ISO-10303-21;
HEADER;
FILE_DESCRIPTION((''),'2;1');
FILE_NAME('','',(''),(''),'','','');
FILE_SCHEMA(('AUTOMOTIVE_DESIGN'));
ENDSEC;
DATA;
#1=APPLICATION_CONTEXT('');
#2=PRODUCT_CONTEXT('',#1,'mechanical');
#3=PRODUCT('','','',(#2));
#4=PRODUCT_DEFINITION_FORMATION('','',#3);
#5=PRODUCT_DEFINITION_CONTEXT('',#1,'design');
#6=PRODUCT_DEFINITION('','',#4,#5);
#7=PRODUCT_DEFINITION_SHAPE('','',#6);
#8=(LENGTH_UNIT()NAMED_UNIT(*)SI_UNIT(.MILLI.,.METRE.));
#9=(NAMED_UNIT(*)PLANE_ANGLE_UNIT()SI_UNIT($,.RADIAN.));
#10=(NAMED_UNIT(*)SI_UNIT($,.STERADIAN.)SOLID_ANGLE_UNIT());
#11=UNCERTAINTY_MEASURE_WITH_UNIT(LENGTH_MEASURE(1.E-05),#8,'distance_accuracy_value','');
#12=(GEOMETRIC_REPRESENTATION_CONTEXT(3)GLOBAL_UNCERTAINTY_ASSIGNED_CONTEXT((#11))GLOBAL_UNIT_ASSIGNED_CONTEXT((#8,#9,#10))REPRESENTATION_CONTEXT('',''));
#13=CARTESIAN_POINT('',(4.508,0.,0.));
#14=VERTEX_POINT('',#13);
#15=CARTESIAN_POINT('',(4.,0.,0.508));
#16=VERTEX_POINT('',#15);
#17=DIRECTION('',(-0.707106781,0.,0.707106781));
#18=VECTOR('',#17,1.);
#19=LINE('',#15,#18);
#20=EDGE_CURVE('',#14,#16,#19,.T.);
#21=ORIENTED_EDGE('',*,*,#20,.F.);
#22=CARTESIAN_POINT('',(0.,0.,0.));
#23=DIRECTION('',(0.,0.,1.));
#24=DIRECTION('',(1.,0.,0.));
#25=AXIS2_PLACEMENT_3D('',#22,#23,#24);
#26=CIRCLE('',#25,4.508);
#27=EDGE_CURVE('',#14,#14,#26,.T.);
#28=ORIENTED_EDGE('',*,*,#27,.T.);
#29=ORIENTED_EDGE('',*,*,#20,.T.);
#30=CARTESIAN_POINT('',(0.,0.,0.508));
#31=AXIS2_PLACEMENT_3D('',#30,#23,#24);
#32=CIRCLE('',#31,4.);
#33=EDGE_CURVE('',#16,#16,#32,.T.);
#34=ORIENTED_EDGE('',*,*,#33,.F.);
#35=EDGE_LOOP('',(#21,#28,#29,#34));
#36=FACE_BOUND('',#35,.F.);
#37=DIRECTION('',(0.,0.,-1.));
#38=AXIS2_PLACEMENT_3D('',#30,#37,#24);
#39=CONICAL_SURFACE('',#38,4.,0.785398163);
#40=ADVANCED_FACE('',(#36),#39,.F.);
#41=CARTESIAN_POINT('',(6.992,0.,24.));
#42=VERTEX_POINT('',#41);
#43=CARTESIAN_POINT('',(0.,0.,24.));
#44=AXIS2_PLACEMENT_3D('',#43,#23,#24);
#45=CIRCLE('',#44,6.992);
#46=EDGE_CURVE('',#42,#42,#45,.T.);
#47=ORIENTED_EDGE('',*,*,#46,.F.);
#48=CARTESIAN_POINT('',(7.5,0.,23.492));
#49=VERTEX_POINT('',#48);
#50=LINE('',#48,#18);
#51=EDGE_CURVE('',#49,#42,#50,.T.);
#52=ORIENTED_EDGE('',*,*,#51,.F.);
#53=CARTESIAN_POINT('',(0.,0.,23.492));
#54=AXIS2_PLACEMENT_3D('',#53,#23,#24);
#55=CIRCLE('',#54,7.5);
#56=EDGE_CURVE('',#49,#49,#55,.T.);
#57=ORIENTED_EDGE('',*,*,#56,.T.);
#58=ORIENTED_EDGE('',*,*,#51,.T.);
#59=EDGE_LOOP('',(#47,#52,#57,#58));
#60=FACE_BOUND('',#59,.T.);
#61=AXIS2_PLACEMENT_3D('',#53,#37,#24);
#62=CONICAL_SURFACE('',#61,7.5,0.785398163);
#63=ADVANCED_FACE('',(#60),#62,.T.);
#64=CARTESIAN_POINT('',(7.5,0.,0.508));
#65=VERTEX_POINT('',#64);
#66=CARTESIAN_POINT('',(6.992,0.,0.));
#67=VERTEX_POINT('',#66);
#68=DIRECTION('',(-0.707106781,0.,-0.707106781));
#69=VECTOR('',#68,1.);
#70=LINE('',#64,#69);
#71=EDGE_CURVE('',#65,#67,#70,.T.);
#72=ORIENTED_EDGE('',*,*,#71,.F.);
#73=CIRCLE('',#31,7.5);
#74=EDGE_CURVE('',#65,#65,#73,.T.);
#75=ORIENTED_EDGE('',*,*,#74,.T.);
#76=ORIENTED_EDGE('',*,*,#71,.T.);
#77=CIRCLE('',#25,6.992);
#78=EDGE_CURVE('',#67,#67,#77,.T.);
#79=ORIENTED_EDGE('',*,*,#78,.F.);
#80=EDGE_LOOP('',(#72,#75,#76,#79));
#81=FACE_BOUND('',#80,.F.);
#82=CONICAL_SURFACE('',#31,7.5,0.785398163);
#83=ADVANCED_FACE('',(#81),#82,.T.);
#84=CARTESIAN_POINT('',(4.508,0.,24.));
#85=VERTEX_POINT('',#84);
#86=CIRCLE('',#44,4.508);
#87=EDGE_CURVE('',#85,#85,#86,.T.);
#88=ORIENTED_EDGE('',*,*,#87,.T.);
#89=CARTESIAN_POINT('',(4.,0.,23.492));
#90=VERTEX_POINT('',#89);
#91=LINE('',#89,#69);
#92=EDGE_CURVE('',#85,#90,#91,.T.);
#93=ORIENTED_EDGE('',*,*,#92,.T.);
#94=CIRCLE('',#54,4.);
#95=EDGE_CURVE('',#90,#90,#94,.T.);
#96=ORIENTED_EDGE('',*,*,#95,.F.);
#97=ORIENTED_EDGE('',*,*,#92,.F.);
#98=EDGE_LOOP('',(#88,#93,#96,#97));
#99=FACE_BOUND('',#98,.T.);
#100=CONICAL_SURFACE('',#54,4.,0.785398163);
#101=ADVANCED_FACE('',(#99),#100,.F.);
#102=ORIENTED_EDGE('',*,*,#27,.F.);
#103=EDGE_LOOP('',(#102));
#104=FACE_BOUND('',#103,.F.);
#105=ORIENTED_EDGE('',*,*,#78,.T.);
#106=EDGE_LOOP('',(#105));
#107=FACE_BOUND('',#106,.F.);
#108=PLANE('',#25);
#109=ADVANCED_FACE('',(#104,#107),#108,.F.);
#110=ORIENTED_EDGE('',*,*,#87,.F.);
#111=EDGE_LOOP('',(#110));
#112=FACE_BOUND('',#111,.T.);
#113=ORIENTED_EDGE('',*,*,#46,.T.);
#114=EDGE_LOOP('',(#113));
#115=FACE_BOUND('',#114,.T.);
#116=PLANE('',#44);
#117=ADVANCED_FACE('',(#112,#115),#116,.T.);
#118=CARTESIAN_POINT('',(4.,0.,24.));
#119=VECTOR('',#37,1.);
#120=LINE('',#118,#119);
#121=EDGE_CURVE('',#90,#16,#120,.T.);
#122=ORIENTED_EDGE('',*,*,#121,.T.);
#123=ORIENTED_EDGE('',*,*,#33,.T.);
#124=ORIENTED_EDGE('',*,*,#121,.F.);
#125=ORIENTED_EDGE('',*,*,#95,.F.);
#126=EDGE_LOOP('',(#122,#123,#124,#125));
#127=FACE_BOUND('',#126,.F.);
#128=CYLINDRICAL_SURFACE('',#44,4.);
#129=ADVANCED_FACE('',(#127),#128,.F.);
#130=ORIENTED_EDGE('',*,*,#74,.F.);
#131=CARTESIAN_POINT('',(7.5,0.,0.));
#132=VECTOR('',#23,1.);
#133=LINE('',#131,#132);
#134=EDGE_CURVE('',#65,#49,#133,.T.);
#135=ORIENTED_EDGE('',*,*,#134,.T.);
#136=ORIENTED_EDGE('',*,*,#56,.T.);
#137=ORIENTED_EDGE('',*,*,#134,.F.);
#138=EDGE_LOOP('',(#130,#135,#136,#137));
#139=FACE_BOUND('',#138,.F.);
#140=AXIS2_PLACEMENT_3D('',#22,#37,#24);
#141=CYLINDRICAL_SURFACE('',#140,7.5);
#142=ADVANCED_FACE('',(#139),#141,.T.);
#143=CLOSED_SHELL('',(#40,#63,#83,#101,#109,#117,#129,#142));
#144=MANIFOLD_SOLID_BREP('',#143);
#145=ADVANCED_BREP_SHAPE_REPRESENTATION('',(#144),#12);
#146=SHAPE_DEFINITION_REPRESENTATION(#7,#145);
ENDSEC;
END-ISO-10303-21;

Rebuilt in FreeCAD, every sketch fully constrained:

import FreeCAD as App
import Part
import Sketcher
from FreeCAD import Vector
Q = App.Units.Quantity


def edges_at(feature, points):
    """Names of the edges that pass closest to the given points."""
    edges = feature.Shape.Edges
    near = lambda p: min(range(len(edges)), key=lambda i: edges[i].distToShape(Part.Vertex(*p))[0])
    return sorted({f"Edge{near(p) + 1}" for p in points})

doc = App.newDocument("Part")
body = doc.addObject("PartDesign::Body", "Body")

sketch1 = body.newObject("Sketcher::SketchObject", "Sketch")
sketch1.AttachmentSupport = (doc.getObject("XY_Plane"), [""])
sketch1.MapMode = "FlatFace"
sketch1.addGeometry(Part.Circle(Vector(0, 0, 0), Vector(0, 0, 1), 8), False)
sketch1.addConstraint([
    Sketcher.Constraint("Coincident", 0, 3, -1, 1),
    Sketcher.Constraint("Diameter", 0, Q("15 mm")),
])
pad1 = body.newObject("PartDesign::Pad", "Pad")
pad1.Profile = sketch1
pad1.Length = 24

sketch2 = body.newObject("Sketcher::SketchObject", "Sketch001")
sketch2.AttachmentSupport = (doc.getObject("XY_Plane"), [""])
sketch2.MapMode = "FlatFace"
sketch2.AttachmentOffset = App.Placement(Vector(0, 0, 24), App.Rotation())
sketch2.addGeometry(Part.Circle(Vector(0, 0, 0), Vector(0, 0, 1), 4), False)
sketch2.addConstraint([
    Sketcher.Constraint("Coincident", 0, 3, -1, 1),
    Sketcher.Constraint("Diameter", 0, Q("8 mm")),
])
pocket1 = body.newObject("PartDesign::Pocket", "Pocket")
pocket1.Profile = sketch2
pocket1.Type = "ThroughAll"
doc.recompute()

chamfer = body.newObject("PartDesign::Chamfer", "Chamfer")
chamfer.Base = (pocket1, edges_at(pocket1, [
    (-7.5, 0, 24),
    (-4, 0, 24),
    (-7.5, 0, 0),
    (-4, 0, 0),
]))
chamfer.Size = 0.508

doc.recompute()
